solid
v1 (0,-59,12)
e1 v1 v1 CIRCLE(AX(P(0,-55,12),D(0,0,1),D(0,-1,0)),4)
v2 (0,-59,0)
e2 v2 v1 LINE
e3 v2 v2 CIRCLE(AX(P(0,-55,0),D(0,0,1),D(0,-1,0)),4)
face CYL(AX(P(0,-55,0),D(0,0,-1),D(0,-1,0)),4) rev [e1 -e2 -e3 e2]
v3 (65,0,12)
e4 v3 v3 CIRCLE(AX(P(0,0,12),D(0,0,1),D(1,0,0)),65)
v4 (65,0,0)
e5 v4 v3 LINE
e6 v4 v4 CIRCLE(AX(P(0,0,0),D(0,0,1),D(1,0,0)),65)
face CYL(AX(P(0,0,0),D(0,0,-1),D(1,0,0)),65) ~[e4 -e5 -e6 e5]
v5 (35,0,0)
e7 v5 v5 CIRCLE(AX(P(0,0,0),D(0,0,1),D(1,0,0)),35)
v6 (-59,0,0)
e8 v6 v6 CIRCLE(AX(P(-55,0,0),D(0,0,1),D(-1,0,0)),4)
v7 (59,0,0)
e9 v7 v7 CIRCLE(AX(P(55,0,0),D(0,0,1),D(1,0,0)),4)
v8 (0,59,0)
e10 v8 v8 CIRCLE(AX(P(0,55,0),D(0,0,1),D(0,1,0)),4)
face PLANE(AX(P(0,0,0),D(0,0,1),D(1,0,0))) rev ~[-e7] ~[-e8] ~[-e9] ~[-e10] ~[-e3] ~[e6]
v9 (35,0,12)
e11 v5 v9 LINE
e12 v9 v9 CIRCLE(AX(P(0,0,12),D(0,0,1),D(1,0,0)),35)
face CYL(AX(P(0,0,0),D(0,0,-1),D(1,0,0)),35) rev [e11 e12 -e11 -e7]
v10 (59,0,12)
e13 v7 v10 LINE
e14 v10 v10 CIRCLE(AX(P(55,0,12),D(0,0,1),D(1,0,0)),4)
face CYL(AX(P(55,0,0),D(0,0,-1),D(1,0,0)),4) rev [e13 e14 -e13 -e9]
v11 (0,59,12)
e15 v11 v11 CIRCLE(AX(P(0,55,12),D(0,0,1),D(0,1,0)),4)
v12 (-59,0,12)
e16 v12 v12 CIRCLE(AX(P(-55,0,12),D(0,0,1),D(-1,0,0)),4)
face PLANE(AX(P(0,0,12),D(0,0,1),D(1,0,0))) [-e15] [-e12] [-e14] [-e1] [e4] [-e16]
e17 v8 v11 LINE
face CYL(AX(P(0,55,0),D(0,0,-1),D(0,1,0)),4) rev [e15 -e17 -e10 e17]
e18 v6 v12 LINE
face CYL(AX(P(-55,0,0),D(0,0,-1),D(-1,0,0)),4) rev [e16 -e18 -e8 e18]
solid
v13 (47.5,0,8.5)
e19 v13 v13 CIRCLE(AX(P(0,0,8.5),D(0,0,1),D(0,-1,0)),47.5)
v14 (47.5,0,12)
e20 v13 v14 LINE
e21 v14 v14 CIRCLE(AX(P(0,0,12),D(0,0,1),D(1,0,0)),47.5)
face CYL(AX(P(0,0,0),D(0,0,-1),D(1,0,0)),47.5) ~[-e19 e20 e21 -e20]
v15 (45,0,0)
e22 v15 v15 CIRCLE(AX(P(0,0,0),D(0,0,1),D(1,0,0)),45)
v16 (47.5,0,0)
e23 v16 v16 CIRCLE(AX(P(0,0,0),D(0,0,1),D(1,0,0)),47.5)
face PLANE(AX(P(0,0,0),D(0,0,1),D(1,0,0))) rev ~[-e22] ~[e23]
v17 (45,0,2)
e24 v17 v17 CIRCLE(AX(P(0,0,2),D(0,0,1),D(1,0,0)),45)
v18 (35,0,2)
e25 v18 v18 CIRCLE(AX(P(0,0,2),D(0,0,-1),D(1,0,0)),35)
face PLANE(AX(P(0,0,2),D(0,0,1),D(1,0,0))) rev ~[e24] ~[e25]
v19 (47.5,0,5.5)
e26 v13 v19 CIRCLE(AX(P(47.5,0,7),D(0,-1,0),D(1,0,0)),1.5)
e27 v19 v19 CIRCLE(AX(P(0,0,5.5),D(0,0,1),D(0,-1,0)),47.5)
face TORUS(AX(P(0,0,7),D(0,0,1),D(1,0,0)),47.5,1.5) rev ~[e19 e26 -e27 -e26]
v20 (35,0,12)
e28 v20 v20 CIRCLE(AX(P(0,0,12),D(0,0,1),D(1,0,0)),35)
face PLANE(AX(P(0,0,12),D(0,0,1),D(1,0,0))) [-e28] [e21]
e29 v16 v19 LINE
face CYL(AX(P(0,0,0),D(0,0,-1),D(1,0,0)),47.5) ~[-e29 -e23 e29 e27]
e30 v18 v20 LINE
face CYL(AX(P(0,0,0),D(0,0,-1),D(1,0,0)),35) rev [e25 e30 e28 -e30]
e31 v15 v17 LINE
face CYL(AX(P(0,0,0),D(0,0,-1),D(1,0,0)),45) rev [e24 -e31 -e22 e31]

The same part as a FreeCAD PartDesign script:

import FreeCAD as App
import Part
import Sketcher

V = App.Vector
Q = App.Units.Quantity

doc = App.newDocument("Part")
body = doc.addObject("PartDesign::Body", "Body")

# Sketch on XY plane
sketch1 = doc.addObject("Sketcher::SketchObject", "Sketch")
body.addObject(sketch1)
sketch1.AttachmentSupport = (doc.XY_Plane, [""])
sketch1.MapMode = "FlatFace"
sketch1.addGeometry(Part.Circle(V(55, 0, 0), V(0, 0, 1), 4), False)
sketch1.addConstraint([
    Sketcher.Constraint("PointOnObject", 0, 3, -1),
    Sketcher.Constraint("Diameter", 0, Q("8 mm")),
    Sketcher.Constraint("DistanceX", -1, 1, 0, 3, Q("55 mm")),
])
pad1 = doc.addObject("PartDesign::Pad", "Pad")
body.addObject(pad1)
pad1.Profile = sketch1
pad1.Length = 12
body2 = doc.addObject("PartDesign::Body", "Body001")
body2.AllowCompound = True
doc.recompute()

body2.BaseFeature = body
doc.recompute()

body3 = doc.addObject("PartDesign::Body", "Body002")
body3.BaseFeature = body
body3.Placement = App.Placement(V(0, 0, 0), App.Rotation(V(0, 0, 1), 90))
boolean = doc.addObject("PartDesign::Boolean", "Boolean")
body2.addObject(boolean)
boolean.Type = "Fuse"
boolean.addObjects([body3])
doc.recompute()

body4 = doc.addObject("PartDesign::Body", "Body003")
body4.BaseFeature = body
body4.Placement = App.Placement(V(0, 0, 0), App.Rotation(V(0, 0, 1), 180))
boolean2 = doc.addObject("PartDesign::Boolean", "Boolean001")
body2.addObject(boolean2)
boolean2.Type = "Fuse"
boolean2.addObjects([body4])
doc.recompute()

body.Placement = App.Placement(V(0, 0, 0), App.Rotation(V(0, 0, 1), 270))
boolean3 = doc.addObject("PartDesign::Boolean", "Boolean002")
body2.addObject(boolean3)
boolean3.Type = "Fuse"
boolean3.addObjects([body])
body5 = doc.addObject("PartDesign::Body", "Body004")

# Sketch on XY plane
sketch2 = doc.addObject("Sketcher::SketchObject", "Sketch001")
body5.addObject(sketch2)
sketch2.AttachmentSupport = (doc.getObject("XY_Plane004"), [""])
sketch2.MapMode = "FlatFace"
sketch2.addGeometry(Part.Circle(V(0, 0, 0), V(0, 0, 1), 35), False)
sketch2.addConstraint([
    Sketcher.Constraint("Coincident", 0, 3, -1, 1),
    Sketcher.Constraint("Diameter", 0, Q("70 mm")),
])
pad2 = doc.addObject("PartDesign::Pad", "Pad001")
body5.addObject(pad2)
pad2.Profile = sketch2
pad2.Length = 12
body6 = doc.addObject("PartDesign::Body", "Body005")

# Sketch on XY plane
sketch3 = doc.addObject("Sketcher::SketchObject", "Sketch002")
body6.addObject(sketch3)
sketch3.AttachmentSupport = (doc.getObject("XY_Plane005"), [""])
sketch3.MapMode = "FlatFace"
sketch3.addGeometry(Part.Circle(V(0, 0, 0), V(0, 0, 1), 65), False)
sketch3.addConstraint([
    Sketcher.Constraint("Coincident", 0, 3, -1, 1),
    Sketcher.Constraint("Diameter", 0, Q("130 mm")),
])
pad3 = doc.addObject("PartDesign::Pad", "Pad002")
body6.addObject(pad3)
pad3.Profile = sketch3
pad3.Length = 12
doc.recompute()

boolean4 = doc.addObject("PartDesign::Boolean", "Boolean003")
body6.addObject(boolean4)
boolean4.Type = "Cut"
boolean4.addObjects([body5])
doc.recompute()

boolean5 = doc.addObject("PartDesign::Boolean", "Boolean004")
body6.addObject(boolean5)
boolean5.Type = "Cut"
boolean5.addObjects([body2])
body7 = doc.addObject("PartDesign::Body", "Body006")

# Sketch on XZ plane
sketch4 = doc.addObject("Sketcher::SketchObject", "Sketch003")
body7.addObject(sketch4)
sketch4.AttachmentSupport = (doc.getObject("XZ_Plane006"), [""])
sketch4.MapMode = "FlatFace"
sketch4.addGeometry(Part.Circle(V(47.5, 7, 0), V(0, 0, 1), 1.5), False)
sketch4.addConstraint([
    Sketcher.Constraint("Diameter", 0, Q("3 mm")),
    Sketcher.Constraint("DistanceY", -1, 1, 0, 3, Q("7 mm")),
    Sketcher.Constraint("DistanceX", -1, 1, 0, 3, Q("47.5 mm")),
])
revolution = doc.addObject("PartDesign::Revolution", "Revolution")
body7.addObject(revolution)
revolution.Profile = sketch4
revolution.ReferenceAxis = (sketch4, ["V_Axis"])
revolution.Angle = 360
body8 = doc.addObject("PartDesign::Body", "Body007")

# Sketch on XY plane
sketch5 = doc.addObject("Sketcher::SketchObject", "Sketch004")
body8.addObject(sketch5)
sketch5.AttachmentSupport = (doc.getObject("XY_Plane007"), [""])
sketch5.MapMode = "FlatFace"
sketch5.addGeometry(Part.Circle(V(0, 0, 0), V(0, 0, 1), 45), False)
sketch5.addConstraint([
    Sketcher.Constraint("Coincident", 0, 3, -1, 1),
    Sketcher.Constraint("Diameter", 0, Q("90 mm")),
])
pad4 = doc.addObject("PartDesign::Pad", "Pad003")
body8.addObject(pad4)
pad4.Profile = sketch5
pad4.Length = 2
body9 = doc.addObject("PartDesign::Body", "Body008")

# Sketch on XY plane
sketch6 = doc.addObject("Sketcher::SketchObject", "Sketch005")
body9.addObject(sketch6)
sketch6.AttachmentSupport = (doc.getObject("XY_Plane008"), [""])
sketch6.MapMode = "FlatFace"
sketch6.addGeometry(Part.Circle(V(0, 0, 0), V(0, 0, 1), 35), False)
sketch6.addConstraint([
    Sketcher.Constraint("Coincident", 0, 3, -1, 1),
    Sketcher.Constraint("Diameter", 0, Q("70 mm")),
])
pad5 = doc.addObject("PartDesign::Pad", "Pad004")
body9.addObject(pad5)
pad5.Profile = sketch6
pad5.Length = 12
doc.recompute()

boolean6 = doc.addObject("PartDesign::Boolean", "Boolean005")
body9.addObject(boolean6)
boolean6.Type = "Fuse"
boolean6.addObjects([body8])
body10 = doc.addObject("PartDesign::Body", "Body009")

# Sketch on XY plane
sketch7 = doc.addObject("Sketcher::SketchObject", "Sketch006")
body10.addObject(sketch7)
sketch7.AttachmentSupport = (doc.getObject("XY_Plane009"), [""])
sketch7.MapMode = "FlatFace"
sketch7.addGeometry(Part.Circle(V(0, 0, 0), V(0, 0, 1), 47.5), False)
sketch7.addConstraint([
    Sketcher.Constraint("Coincident", 0, 3, -1, 1),
    Sketcher.Constraint("Diameter", 0, Q("95 mm")),
])
pad6 = doc.addObject("PartDesign::Pad", "Pad005")
body10.addObject(pad6)
pad6.Profile = sketch7
pad6.Length = 12
doc.recompute()

boolean7 = doc.addObject("PartDesign::Boolean", "Boolean006")
body10.addObject(boolean7)
boolean7.Type = "Cut"
boolean7.addObjects([body9])
doc.recompute()

boolean8 = doc.addObject("PartDesign::Boolean", "Boolean007")
body10.addObject(boolean8)
boolean8.Type = "Cut"
boolean8.addObjects([body7])

doc.recompute()
